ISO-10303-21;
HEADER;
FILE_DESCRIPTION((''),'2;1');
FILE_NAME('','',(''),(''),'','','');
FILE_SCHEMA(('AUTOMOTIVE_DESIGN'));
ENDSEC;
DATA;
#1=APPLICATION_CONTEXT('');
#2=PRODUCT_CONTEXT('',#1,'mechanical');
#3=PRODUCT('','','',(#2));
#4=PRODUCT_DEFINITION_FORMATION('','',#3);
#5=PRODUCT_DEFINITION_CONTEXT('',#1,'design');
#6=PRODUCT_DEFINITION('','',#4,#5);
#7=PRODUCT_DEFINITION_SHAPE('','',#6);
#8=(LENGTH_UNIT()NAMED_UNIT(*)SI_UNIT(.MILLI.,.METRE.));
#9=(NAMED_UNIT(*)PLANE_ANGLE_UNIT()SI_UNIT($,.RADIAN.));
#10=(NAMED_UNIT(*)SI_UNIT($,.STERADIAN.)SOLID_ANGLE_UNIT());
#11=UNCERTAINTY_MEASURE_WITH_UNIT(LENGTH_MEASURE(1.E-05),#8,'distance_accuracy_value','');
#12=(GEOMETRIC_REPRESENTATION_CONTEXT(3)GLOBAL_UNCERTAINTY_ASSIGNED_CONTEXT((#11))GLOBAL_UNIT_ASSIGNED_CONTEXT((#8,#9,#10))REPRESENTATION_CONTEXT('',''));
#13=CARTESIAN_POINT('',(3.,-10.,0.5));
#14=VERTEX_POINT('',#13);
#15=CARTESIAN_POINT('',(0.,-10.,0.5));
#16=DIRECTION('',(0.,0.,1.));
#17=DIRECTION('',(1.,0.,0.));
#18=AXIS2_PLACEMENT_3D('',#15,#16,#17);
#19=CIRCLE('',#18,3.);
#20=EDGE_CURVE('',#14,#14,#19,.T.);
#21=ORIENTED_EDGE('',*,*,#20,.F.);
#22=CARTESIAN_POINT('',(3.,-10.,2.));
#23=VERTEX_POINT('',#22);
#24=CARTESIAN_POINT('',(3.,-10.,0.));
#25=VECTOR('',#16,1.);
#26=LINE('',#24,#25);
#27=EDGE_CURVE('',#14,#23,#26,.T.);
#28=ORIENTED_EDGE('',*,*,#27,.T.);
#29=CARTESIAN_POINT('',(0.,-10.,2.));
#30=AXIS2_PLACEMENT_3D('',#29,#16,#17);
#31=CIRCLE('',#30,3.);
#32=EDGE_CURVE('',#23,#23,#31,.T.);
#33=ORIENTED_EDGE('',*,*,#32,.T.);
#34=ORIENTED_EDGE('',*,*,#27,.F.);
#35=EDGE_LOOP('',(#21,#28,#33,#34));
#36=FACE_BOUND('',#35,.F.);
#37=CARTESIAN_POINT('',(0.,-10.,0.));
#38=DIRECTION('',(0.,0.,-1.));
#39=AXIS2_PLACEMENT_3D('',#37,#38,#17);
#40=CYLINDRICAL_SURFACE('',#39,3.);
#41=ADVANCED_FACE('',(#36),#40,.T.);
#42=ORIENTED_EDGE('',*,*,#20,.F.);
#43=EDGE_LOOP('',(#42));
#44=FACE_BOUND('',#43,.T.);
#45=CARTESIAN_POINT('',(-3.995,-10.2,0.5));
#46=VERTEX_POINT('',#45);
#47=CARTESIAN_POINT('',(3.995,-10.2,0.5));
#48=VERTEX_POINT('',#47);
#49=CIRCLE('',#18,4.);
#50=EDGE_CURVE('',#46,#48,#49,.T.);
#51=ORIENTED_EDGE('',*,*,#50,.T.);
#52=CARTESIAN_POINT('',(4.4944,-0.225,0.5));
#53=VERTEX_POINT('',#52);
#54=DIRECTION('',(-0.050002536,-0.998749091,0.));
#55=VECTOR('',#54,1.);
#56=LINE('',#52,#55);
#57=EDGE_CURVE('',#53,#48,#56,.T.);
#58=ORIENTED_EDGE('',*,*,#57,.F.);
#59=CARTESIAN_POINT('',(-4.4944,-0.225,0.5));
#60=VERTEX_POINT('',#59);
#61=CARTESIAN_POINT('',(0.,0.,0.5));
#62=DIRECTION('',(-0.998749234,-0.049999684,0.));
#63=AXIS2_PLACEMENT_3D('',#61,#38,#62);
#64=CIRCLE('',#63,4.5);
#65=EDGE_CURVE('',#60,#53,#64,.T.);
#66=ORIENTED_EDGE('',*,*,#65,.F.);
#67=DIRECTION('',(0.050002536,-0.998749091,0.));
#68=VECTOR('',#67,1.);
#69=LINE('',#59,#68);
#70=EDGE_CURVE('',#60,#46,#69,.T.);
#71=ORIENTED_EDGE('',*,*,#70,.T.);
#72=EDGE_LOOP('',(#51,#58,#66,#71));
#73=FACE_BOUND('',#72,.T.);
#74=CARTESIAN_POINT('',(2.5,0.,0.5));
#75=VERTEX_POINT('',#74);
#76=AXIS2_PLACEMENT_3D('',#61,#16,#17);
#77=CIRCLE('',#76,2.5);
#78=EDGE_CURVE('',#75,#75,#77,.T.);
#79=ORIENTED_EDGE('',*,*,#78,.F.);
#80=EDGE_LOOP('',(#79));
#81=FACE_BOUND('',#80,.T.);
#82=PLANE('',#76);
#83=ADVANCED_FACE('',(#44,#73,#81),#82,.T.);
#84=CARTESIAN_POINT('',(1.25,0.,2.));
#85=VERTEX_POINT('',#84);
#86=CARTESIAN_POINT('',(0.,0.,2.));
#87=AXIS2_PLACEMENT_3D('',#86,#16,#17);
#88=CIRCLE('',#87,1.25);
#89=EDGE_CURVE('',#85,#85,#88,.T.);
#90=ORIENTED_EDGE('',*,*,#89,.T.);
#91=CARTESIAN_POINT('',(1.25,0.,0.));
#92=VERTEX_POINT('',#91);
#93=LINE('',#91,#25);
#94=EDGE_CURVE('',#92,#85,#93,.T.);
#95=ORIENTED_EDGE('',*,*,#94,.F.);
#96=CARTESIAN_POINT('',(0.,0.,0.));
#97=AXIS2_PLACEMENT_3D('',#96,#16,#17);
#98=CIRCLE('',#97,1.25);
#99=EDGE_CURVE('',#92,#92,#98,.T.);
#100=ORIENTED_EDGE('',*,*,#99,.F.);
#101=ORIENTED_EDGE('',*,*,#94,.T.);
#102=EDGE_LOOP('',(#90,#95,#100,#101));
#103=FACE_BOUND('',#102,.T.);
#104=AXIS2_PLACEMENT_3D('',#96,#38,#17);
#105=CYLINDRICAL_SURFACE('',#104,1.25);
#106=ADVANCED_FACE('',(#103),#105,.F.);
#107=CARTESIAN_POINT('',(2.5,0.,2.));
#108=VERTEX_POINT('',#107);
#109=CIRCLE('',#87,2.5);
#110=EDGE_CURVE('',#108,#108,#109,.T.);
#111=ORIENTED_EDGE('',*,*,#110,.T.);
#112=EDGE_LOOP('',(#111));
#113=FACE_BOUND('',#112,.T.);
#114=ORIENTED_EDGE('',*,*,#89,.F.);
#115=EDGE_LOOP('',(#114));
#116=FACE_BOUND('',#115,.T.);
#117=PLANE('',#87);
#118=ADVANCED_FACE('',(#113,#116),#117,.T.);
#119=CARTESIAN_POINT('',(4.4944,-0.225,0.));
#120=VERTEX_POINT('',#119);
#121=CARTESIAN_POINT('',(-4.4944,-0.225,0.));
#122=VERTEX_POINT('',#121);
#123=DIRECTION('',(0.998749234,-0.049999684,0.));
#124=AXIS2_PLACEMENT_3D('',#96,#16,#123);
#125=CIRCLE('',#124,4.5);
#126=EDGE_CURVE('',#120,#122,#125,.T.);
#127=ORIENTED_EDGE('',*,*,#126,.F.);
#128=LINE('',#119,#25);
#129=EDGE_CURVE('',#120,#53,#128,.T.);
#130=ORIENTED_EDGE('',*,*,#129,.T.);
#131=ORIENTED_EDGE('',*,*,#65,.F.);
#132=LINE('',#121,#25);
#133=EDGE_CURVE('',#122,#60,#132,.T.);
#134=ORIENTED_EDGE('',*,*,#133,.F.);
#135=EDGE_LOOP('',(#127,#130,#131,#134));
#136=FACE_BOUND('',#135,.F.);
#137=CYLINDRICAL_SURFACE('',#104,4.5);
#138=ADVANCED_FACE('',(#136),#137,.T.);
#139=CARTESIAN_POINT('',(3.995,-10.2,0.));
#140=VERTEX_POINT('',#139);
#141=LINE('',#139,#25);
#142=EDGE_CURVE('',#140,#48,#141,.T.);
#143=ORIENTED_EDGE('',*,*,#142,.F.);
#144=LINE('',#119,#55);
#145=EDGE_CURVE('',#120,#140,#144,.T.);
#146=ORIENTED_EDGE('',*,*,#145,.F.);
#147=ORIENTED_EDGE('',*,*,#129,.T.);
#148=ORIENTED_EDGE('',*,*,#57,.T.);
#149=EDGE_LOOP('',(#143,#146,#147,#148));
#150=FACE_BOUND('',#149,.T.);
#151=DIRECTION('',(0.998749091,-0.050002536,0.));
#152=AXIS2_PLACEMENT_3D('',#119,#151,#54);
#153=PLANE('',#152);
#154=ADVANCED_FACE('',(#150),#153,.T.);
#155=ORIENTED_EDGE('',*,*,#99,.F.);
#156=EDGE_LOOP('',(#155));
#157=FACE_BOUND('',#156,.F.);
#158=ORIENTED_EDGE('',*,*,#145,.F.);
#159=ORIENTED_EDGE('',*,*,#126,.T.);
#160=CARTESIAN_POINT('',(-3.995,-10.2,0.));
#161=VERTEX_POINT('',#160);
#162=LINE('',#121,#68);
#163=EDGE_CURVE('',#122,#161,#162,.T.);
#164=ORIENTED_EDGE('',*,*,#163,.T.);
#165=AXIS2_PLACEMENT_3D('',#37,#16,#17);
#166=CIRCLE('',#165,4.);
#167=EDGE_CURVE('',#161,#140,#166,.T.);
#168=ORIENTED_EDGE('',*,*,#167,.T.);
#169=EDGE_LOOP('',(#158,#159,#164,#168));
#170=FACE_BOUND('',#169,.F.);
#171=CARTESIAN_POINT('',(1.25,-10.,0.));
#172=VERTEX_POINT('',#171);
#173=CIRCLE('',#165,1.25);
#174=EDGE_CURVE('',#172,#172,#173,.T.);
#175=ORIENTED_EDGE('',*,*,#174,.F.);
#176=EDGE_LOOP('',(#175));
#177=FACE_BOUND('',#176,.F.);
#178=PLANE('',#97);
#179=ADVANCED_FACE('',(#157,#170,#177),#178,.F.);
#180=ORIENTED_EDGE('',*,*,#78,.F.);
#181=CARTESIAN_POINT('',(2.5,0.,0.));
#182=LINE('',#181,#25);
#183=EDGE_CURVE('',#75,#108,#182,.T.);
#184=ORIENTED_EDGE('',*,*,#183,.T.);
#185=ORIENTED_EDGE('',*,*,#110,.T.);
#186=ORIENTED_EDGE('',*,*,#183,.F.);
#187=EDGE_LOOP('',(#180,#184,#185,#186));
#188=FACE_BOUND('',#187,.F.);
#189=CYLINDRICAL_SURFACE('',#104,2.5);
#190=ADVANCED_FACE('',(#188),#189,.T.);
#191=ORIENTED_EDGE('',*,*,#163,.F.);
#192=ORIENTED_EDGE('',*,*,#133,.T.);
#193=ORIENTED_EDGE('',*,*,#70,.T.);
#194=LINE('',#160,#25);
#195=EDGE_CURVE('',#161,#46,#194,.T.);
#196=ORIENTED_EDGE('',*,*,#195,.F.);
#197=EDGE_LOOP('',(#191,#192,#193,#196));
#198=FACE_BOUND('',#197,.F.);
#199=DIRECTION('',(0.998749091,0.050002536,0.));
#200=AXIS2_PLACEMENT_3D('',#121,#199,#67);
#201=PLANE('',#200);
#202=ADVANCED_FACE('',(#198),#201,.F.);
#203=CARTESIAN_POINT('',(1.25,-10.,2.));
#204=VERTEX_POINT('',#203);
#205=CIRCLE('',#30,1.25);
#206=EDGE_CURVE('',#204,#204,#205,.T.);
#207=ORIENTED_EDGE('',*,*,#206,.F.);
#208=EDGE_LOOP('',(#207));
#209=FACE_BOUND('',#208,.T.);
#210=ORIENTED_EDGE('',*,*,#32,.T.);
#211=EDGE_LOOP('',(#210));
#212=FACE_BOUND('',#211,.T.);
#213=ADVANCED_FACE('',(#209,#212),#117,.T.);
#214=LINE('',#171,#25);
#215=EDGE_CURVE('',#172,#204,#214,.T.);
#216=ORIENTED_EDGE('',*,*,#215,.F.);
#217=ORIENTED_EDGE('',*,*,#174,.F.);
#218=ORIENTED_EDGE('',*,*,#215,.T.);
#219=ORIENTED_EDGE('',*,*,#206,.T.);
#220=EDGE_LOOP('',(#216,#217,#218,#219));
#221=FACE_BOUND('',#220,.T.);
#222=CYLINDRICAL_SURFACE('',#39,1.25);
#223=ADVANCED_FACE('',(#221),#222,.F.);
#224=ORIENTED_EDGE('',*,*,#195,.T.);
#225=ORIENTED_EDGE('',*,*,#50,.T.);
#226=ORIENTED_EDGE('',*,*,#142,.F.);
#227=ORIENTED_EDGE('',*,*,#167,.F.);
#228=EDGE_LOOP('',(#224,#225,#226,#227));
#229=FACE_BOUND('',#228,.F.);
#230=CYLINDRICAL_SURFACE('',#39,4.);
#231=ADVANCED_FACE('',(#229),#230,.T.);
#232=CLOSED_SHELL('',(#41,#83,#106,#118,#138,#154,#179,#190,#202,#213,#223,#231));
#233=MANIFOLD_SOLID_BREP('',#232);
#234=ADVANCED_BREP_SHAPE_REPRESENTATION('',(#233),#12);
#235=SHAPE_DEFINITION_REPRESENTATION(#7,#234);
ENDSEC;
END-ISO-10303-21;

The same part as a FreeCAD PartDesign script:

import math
import FreeCAD as App
import Part
import Sketcher

V = App.Vector
Q = App.Units.Quantity

doc = App.newDocument("Part")
body = doc.addObject("PartDesign::Body", "Body")

sketch1 = body.newObject("Sketcher::SketchObject", "Sketch")
sketch1.AttachmentSupport = (doc.getObject("XY_Plane"), [""])
sketch1.MapMode = "FlatFace"
sketch1.addGeometry(Part.ArcOfCircle(Part.Circle(V(0, 0, 0), V(0, 0, 1), 4.5), math.radians(-2.865966), math.radians(182.865966)), False)
sketch1.addGeometry(Part.LineSegment(V(-4.4944, -0.225, 0), V(-3.995, -10.2, 0)), False)
sketch1.addGeometry(Part.ArcOfCircle(Part.Circle(V(0, -10, 0), V(0, 0, 1), 4), math.radians(-177.134018), math.radians(-2.865982)), False)
sketch1.addGeometry(Part.LineSegment(V(3.995, -10.2, 0), V(4.4944, -0.225, 0)), False)
sketch1.addGeometry(Part.Circle(V(0, 0, 0), V(0, 0, 1), 2.5), False)
sketch1.addGeometry(Part.Circle(V(0, -10, 0), V(0, 0, 1), 3), False)
sketch1.addConstraint(Sketcher.Constraint("Tangent", 0, 2, 1, 1))
sketch1.addConstraint(Sketcher.Constraint("Tangent", 1, 2, 2, 1))
sketch1.addConstraint(Sketcher.Constraint("Tangent", 2, 2, 3, 1))
sketch1.addConstraint(Sketcher.Constraint("Tangent", 3, 2, 0, 1))
sketch1.addConstraint(Sketcher.Constraint("Coincident", 0, 3, -1, 1))
sketch1.addConstraint(Sketcher.Constraint("Coincident", 4, 3, -1, 1))
sketch1.addConstraint(Sketcher.Constraint("Coincident", 5, 3, 2, 3))
sketch1.addConstraint(Sketcher.Constraint("PointOnObject", 2, 3, -2))
sketch1.addConstraint(Sketcher.Constraint("Diameter", 4, Q("5 mm")))
sketch1.addConstraint(Sketcher.Constraint("Diameter", 5, Q("6 mm")))
sketch1.addConstraint(Sketcher.Constraint("Radius", 2, Q("4 mm")))
sketch1.addConstraint(Sketcher.Constraint("Radius", 0, Q("4.5 mm")))
sketch1.addConstraint(Sketcher.Constraint("DistanceY", 2, 3, -1, 1, Q("10 mm")))
pad1 = body.newObject("PartDesign::Pad", "Pad")
pad1.Profile = sketch1
pad1.Length = 0.5

sketch2 = body.newObject("Sketcher::SketchObject", "Sketch001")
sketch2.AttachmentSupport = (doc.getObject("XY_Plane"), [""])
sketch2.MapMode = "FlatFace"
sketch2.addGeometry(Part.Circle(V(0, 0, 0), V(0, 0, 1), 2.5), False)
sketch2.addGeometry(Part.Circle(V(0, 0, 0), V(0, 0, 1), 1.25), False)
sketch2.addGeometry(Part.Circle(V(0, -10, 0), V(0, 0, 1), 3), False)
sketch2.addGeometry(Part.Circle(V(0, -10, 0), V(0, 0, 1), 1.25), False)
sketch2.addConstraint(Sketcher.Constraint("Coincident", 0, 3, -1, 1))
sketch2.addConstraint(Sketcher.Constraint("Coincident", 1, 3, -1, 1))
sketch2.addConstraint(Sketcher.Constraint("Coincident", 3, 3, 2, 3))
sketch2.addConstraint(Sketcher.Constraint("Equal", 1, 3))
sketch2.addConstraint(Sketcher.Constraint("PointOnObject", 2, 3, -2))
sketch2.addConstraint(Sketcher.Constraint("Diameter", 0, Q("5 mm")))
sketch2.addConstraint(Sketcher.Constraint("Diameter", 2, Q("6 mm")))
sketch2.addConstraint(Sketcher.Constraint("Diameter", 1, Q("2.5 mm")))
sketch2.addConstraint(Sketcher.Constraint("DistanceY", 2, 3, -1, 1, Q("10 mm")))
pad2 = body.newObject("PartDesign::Pad", "Pad001")
pad2.Profile = sketch2
pad2.Length = 2

doc.recompute()
